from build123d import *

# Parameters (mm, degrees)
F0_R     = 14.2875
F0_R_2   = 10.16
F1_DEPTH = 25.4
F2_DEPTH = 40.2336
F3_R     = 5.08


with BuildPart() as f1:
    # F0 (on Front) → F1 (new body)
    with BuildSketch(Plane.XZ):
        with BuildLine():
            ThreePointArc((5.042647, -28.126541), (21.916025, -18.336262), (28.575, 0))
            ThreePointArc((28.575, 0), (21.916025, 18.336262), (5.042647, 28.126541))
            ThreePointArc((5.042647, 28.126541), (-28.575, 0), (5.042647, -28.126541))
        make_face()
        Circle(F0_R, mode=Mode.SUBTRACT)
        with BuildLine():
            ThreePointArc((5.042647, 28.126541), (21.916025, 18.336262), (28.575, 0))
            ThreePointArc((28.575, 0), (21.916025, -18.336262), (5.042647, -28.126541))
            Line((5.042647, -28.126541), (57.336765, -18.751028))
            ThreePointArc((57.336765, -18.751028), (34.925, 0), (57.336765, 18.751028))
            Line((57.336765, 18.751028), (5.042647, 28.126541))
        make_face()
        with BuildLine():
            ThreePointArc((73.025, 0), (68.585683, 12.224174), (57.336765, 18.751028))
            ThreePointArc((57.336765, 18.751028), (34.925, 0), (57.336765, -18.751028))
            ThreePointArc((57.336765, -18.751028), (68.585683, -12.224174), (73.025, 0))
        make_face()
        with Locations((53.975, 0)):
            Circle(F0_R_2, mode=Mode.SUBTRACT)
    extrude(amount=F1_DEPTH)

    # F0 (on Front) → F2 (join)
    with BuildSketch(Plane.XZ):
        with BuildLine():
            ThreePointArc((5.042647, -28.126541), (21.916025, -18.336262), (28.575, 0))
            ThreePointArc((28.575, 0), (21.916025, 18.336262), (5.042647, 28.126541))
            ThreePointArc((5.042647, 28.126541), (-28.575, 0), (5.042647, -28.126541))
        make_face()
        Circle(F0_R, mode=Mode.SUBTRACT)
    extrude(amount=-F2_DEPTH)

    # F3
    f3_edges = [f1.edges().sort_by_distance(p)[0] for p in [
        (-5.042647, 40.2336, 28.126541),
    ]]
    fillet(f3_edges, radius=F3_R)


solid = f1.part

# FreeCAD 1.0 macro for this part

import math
import FreeCAD as App
import Part
import Sketcher
from FreeCAD import Vector
Q = App.Units.Quantity


def edges_at(feature, points):
    """Names of the edges that pass closest to the given points."""
    edges = feature.Shape.Edges
    near = lambda p: min(range(len(edges)), key=lambda i: edges[i].distToShape(Part.Vertex(*p))[0])
    return sorted({f"Edge{near(p) + 1}" for p in points})

doc = App.newDocument("Part")
params = doc.addObject("Spreadsheet::Sheet", "Params")
for row, (alias, value) in enumerate([
    ("sketch1_diameter", "0.8 in"),
    ("sketch1_radius", "0.7500001 in"),
    ("sketch1_diameter2", "1.125 in"),
    ("sketch1_radius2", "1.125 in"),
    ("pad1_length", "1 in"),
    ("sketch2_diameter", "1.125 in"),
    ("sketch2_radius", "1.1249999 in"),
    ("pad2_length", "1.584 in"),
    ("fillet_radius", "0.2 in"),
], start=1):
    params.set(f"A{row}", alias)
    params.set(f"B{row}", "=" + value)
    params.setAlias(f"B{row}", alias)

body = doc.addObject("PartDesign::Body", "Body")

# Sketch on XZ plane
sketch1 = doc.addObject("Sketcher::SketchObject", "Sketch")
body.addObject(sketch1)
sketch1.AttachmentSupport = (doc.XZ_Plane, [""])
sketch1.MapMode = "FlatFace"
sketch1.addGeometry(Part.ArcOfCircle(Part.Circle(Vector(0, 0, 0), Vector(0, 0, 1), 29), math.radians(80), math.radians(280)), False)
sketch1.addGeometry(Part.LineSegment(Vector(5, -28, 0), Vector(57, -19, 0)), False)
sketch1.addGeometry(Part.ArcOfCircle(Part.Circle(Vector(54, 0, 0), Vector(0, 0, 1), 19), math.radians(-80), math.radians(0)), False)
sketch1.addGeometry(Part.ArcOfCircle(Part.Circle(Vector(54, 0, 0), Vector(0, 0, 1), 19), math.radians(0), math.radians(80)), False)
sketch1.addGeometry(Part.LineSegment(Vector(57, 19, 0), Vector(5, 28, 0)), False)
sketch1.addGeometry(Part.Circle(Vector(0, 0, 0), Vector(0, 0, 1), 14), False)
sketch1.addGeometry(Part.Circle(Vector(54, 0, 0), Vector(0, 0, 1), 10), False)
sketch1.addConstraint(Sketcher.Constraint("Tangent", 0, 2, 1, 1))
sketch1.addConstraint(Sketcher.Constraint("Tangent", 1, 2, 2, 1))
sketch1.addConstraint(Sketcher.Constraint("Tangent", 2, 2, 3, 1))
sketch1.addConstraint(Sketcher.Constraint("Tangent", 3, 2, 4, 1))
sketch1.addConstraint(Sketcher.Constraint("Tangent", 4, 2, 0, 1))
sketch1.addConstraint(Sketcher.Constraint("Coincident", 0, 3, -1, 1))
sketch1.addConstraint(Sketcher.Constraint("Coincident", 5, 3, -1, 1))
sketch1.addConstraint(Sketcher.Constraint("Coincident", 6, 3, 2, 3))
sketch1.addConstraint(Sketcher.Constraint("Equal", 2, 3))
sketch1.addConstraint(Sketcher.Constraint("PointOnObject", 2, 3, -1))
sketch1.addConstraint(Sketcher.Constraint("PointOnObject", 2, 2, -1))
sketch1.addConstraint(Sketcher.Constraint("Diameter", 6, Q("0.8 in")))
sketch1.addConstraint(Sketcher.Constraint("Radius", 2, Q("0.7500001 in")))
sketch1.addConstraint(Sketcher.Constraint("Diameter", 5, Q("1.125 in")))
sketch1.addConstraint(Sketcher.Constraint("Radius", 0, Q("1.125 in")))
sketch1.addConstraint(Sketcher.Constraint("DistanceX", -1, 1, 2, 3, Q("2.1249999 in")))
sketch1.setExpression("Constraints[11]", "Params.sketch1_diameter")
sketch1.setExpression("Constraints[12]", "Params.sketch1_radius")
sketch1.setExpression("Constraints[13]", "Params.sketch1_diameter2")
sketch1.setExpression("Constraints[14]", "Params.sketch1_radius2")
pad1 = doc.addObject("PartDesign::Pad", "Pad")
body.addObject(pad1)
pad1.Profile = sketch1
pad1.setExpression("Length", "Params.pad1_length")

# Sketch on XZ plane
sketch2 = doc.addObject("Sketcher::SketchObject", "Sketch001")
body.addObject(sketch2)
sketch2.AttachmentSupport = (doc.XZ_Plane, [""])
sketch2.MapMode = "FlatFace"
sketch2.addGeometry(Part.ArcOfCircle(Part.Circle(Vector(0, 0, 0), Vector(0, 0, 1), 29), math.radians(-80), math.radians(0)), False)
sketch2.addGeometry(Part.ArcOfCircle(Part.Circle(Vector(0, 0, 0), Vector(0, 0, 1), 29), math.radians(0), math.radians(80)), False)
sketch2.addGeometry(Part.ArcOfCircle(Part.Circle(Vector(0, 0, 0), Vector(0, 0, 1), 29), math.radians(80), math.radians(280)), False)
sketch2.addGeometry(Part.Circle(Vector(0, 0, 0), Vector(0, 0, 1), 14), False)
sketch2.addConstraint(Sketcher.Constraint("Tangent", 0, 2, 1, 1))
sketch2.addConstraint(Sketcher.Constraint("Tangent", 1, 2, 2, 1))
sketch2.addConstraint(Sketcher.Constraint("Tangent", 2, 2, 0, 1))
sketch2.addConstraint(Sketcher.Constraint("Coincident", 0, 3, -1, 1))
sketch2.addConstraint(Sketcher.Constraint("Coincident", 3, 3, -1, 1))
sketch2.addConstraint(Sketcher.Constraint("PointOnObject", 0, 2, -1))
sketch2.addConstraint(Sketcher.Constraint("Vertical", 1, 2, 2, 2))
sketch2.addConstraint(Sketcher.Constraint("Diameter", 3, Q("1.125 in")))
sketch2.addConstraint(Sketcher.Constraint("Radius", 0, Q("1.1249999 in")))
sketch2.addConstraint(Sketcher.Constraint("DistanceY", -1, 1, 1, 2, Q("28.126541 mm")))
sketch2.setExpression("Constraints[7]", "Params.sketch2_diameter")
sketch2.setExpression("Constraints[8]", "Params.sketch2_radius")
pad2 = doc.addObject("PartDesign::Pad", "Pad001")
body.addObject(pad2)
pad2.Profile = sketch2
pad2.setExpression("Length", "Params.pad2_length")
pad2.Reversed = True
doc.recompute()

fillet = doc.addObject("PartDesign::Fillet", "Fillet")
body.addObject(fillet)
fillet.Base = (pad2, edges_at(pad2, [(-28.575, 40.234, 0)]))
fillet.setExpression("Radius", "Params.fillet_radius")

doc.recompute()
